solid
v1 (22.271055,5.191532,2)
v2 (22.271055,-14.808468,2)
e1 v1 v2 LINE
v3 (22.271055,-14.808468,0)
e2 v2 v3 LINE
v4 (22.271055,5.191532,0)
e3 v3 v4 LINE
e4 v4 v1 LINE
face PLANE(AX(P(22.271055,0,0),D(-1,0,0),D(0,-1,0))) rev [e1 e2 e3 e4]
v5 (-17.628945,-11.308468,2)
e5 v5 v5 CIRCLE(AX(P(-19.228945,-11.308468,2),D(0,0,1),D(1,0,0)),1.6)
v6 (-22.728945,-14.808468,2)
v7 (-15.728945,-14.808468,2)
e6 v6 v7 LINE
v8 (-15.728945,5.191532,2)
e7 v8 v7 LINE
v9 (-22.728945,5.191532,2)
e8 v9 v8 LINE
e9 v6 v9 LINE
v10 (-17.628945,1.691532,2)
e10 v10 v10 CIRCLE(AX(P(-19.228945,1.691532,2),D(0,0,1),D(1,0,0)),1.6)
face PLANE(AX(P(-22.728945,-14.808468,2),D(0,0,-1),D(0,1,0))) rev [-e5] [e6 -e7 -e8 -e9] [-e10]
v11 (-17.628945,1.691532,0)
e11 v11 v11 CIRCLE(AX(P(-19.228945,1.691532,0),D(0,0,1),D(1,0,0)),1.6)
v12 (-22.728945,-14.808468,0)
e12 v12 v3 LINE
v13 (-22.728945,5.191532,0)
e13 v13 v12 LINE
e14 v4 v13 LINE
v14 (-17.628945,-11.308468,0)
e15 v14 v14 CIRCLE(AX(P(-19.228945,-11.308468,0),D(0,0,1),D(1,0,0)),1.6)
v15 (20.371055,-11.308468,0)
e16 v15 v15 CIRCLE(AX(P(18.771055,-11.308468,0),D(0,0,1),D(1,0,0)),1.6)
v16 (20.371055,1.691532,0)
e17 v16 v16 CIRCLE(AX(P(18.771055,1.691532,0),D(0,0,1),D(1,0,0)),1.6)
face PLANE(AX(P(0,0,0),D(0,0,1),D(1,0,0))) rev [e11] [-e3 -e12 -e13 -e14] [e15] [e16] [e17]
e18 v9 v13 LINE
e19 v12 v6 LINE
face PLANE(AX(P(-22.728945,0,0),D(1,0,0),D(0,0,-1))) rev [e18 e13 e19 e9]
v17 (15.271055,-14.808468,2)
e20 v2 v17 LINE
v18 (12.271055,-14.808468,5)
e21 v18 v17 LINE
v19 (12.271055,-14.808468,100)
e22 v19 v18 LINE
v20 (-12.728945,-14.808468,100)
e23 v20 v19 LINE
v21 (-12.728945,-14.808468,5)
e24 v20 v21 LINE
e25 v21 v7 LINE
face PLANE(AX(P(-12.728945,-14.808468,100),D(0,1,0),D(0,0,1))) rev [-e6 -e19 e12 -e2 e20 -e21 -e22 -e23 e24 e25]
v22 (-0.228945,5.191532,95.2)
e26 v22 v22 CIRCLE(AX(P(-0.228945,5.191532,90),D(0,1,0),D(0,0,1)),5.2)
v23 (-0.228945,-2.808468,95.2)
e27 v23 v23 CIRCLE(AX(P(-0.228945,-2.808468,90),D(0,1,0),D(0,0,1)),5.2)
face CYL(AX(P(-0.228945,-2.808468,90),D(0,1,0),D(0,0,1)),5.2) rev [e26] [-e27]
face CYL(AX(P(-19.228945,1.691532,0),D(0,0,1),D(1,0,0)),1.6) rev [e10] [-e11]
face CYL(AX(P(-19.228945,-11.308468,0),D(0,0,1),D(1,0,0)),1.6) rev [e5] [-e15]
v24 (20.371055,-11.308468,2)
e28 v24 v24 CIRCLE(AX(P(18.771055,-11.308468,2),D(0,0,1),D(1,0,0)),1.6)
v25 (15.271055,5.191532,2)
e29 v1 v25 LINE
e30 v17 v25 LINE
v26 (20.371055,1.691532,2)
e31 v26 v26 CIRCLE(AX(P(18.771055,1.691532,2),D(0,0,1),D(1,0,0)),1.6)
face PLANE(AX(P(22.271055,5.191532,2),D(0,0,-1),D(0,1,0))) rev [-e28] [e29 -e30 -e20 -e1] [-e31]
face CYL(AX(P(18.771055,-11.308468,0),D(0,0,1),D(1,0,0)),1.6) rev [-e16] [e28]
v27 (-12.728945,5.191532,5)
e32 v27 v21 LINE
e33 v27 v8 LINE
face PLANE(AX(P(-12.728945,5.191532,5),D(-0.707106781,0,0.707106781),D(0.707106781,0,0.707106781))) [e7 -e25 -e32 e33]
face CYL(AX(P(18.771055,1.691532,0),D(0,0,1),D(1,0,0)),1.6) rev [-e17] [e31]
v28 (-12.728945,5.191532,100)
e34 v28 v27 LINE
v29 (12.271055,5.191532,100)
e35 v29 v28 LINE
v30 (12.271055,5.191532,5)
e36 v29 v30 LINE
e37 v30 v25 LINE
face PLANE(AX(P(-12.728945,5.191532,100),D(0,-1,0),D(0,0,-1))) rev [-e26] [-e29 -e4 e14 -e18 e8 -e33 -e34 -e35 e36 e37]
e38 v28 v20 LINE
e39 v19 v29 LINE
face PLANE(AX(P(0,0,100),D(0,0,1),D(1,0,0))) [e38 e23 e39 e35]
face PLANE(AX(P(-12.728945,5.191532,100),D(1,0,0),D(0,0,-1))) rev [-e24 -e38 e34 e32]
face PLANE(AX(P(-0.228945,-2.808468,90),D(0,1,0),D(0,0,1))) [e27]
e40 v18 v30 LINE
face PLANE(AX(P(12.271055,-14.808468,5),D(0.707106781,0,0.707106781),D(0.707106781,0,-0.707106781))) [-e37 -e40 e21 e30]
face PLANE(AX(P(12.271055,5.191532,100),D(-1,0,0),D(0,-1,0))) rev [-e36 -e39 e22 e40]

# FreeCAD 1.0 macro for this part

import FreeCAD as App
import Part
import Sketcher

V = App.Vector
Q = App.Units.Quantity

doc = App.newDocument("Part")
body = doc.addObject("PartDesign::Body", "Body")

# Sketch on XY plane
sketch1 = doc.addObject("Sketcher::SketchObject", "Sketch")
body.addObject(sketch1)
sketch1.AttachmentSupport = (doc.XY_Plane, [""])
sketch1.MapMode = "FlatFace"
sketch1.addGeometry(Part.LineSegment(V(-12.728945, 5.191532, 0), V(-12.728945, -14.808468, 0)), False)
sketch1.addGeometry(Part.LineSegment(V(-12.728945, -14.808468, 0), V(12.271055, -14.808468, 0)), False)
sketch1.addGeometry(Part.LineSegment(V(12.271055, -14.808468, 0), V(12.271055, 5.191532, 0)), False)
sketch1.addGeometry(Part.LineSegment(V(12.271055, 5.191532, 0), V(-12.728945, 5.191532, 0)), False)
sketch1.addConstraint(Sketcher.Constraint("Coincident", 0, 2, 1, 1))
sketch1.addConstraint(Sketcher.Constraint("Coincident", 1, 2, 2, 1))
sketch1.addConstraint(Sketcher.Constraint("Coincident", 2, 2, 3, 1))
sketch1.addConstraint(Sketcher.Constraint("Coincident", 3, 2, 0, 1))
sketch1.addConstraint(Sketcher.Constraint("Vertical", 0))
sketch1.addConstraint(Sketcher.Constraint("Horizontal", 1))
sketch1.addConstraint(Sketcher.Constraint("Vertical", 2))
sketch1.addConstraint(Sketcher.Constraint("Horizontal", 3))
sketch1.addConstraint(Sketcher.Constraint("DistanceX", 1, 1, 1, 2, Q("25 mm")))
sketch1.addConstraint(Sketcher.Constraint("DistanceY", 0, 2, 0, 1, Q("20 mm")))
sketch1.addConstraint(Sketcher.Constraint("DistanceX", 0, 2, -1, 1, Q("12.728945 mm")))
sketch1.addConstraint(Sketcher.Constraint("DistanceY", 0, 2, -1, 1, Q("14.808468 mm")))
pad1 = doc.addObject("PartDesign::Pad", "Pad")
body.addObject(pad1)
pad1.Profile = sketch1
pad1.Length = 100

# Sketch on XZ plane
sketch2 = doc.addObject("Sketcher::SketchObject", "Sketch001")
body.addObject(sketch2)
sketch2.AttachmentSupport = (doc.XZ_Plane, [""])
sketch2.MapMode = "FlatFace"
sketch2.AttachmentOffset = App.Placement(V(0, 0, -5.191532), App.Rotation())
sketch2.addGeometry(Part.Circle(V(-0.228945, 90, 0), V(0, 0, 1), 5.2), False)
sketch2.addConstraint(Sketcher.Constraint("Diameter", 0, Q("10.4 mm")))
sketch2.addConstraint(Sketcher.Constraint("DistanceY", -1, 1, 0, 3, Q("90 mm")))
sketch2.addConstraint(Sketcher.Constraint("DistanceX", 0, 3, -1, 1, Q("0.228945 mm")))
pocket1 = doc.addObject("PartDesign::Pocket", "Pocket")
body.addObject(pocket1)
pocket1.Profile = sketch2
pocket1.Length = 8
pocket1.Reversed = True

# Sketch on YZ plane
sketch3 = doc.addObject("Sketcher::SketchObject", "Sketch002")
body.addObject(sketch3)
sketch3.AttachmentSupport = (doc.YZ_Plane, [""])
sketch3.MapMode = "FlatFace"
sketch3.AttachmentOffset = App.Placement(V(0, 0, 12.271055), App.Rotation())
sketch3.addGeometry(Part.LineSegment(V(5.191532, 2, 0), V(-14.808468, 2, 0)), False)
sketch3.addGeometry(Part.LineSegment(V(-14.808468, 2, 0), V(-14.808468, 0, 0)), False)
sketch3.addGeometry(Part.LineSegment(V(-14.808468, 0, 0), V(5.191532, 0, 0)), False)
sketch3.addGeometry(Part.LineSegment(V(5.191532, 0, 0), V(5.191532, 2, 0)), False)
sketch3.addConstraint(Sketcher.Constraint("Coincident", 0, 2, 1, 1))
sketch3.addConstraint(Sketcher.Constraint("Coincident", 1, 2, 2, 1))
sketch3.addConstraint(Sketcher.Constraint("Coincident", 2, 2, 3, 1))
sketch3.addConstraint(Sketcher.Constraint("Coincident", 3, 2, 0, 1))
sketch3.addConstraint(Sketcher.Constraint("Horizontal", 0))
sketch3.addConstraint(Sketcher.Constraint("Vertical", 1))
sketch3.addConstraint(Sketcher.Constraint("Horizontal", 2))
sketch3.addConstraint(Sketcher.Constraint("Vertical", 3))
sketch3.addConstraint(Sketcher.Constraint("PointOnObject", 1, 2, -1))
sketch3.addConstraint(Sketcher.Constraint("DistanceX", 0, 2, 0, 1, Q("20 mm")))
sketch3.addConstraint(Sketcher.Constraint("DistanceY", 1, 2, 1, 1, Q("2 mm")))
sketch3.addConstraint(Sketcher.Constraint("DistanceX", 0, 2, -1, 1, Q("14.808468 mm")))
pad2 = doc.addObject("PartDesign::Pad", "Pad001")
body.addObject(pad2)
pad2.Profile = sketch3
pad2.Length = 10

# Sketch on XZ plane
sketch4 = doc.addObject("Sketcher::SketchObject", "Sketch003")
body.addObject(sketch4)
sketch4.AttachmentSupport = (doc.XZ_Plane, [""])
sketch4.MapMode = "FlatFace"
sketch4.AttachmentOffset = App.Placement(V(0, 0, -5.191532), App.Rotation())
sketch4.addGeometry(Part.LineSegment(V(12.271055, 5, 0), V(15.271055, 2, 0)), False)
sketch4.addGeometry(Part.LineSegment(V(15.271055, 2, 0), V(12.271055, 2, 0)), False)
sketch4.addGeometry(Part.LineSegment(V(12.271055, 2, 0), V(12.271055, 5, 0)), False)
sketch4.addConstraint(Sketcher.Constraint("Coincident", 0, 2, 1, 1))
sketch4.addConstraint(Sketcher.Constraint("Coincident", 1, 2, 2, 1))
sketch4.addConstraint(Sketcher.Constraint("Coincident", 2, 2, 0, 1))
sketch4.addConstraint(Sketcher.Constraint("Horizontal", 1))
sketch4.addConstraint(Sketcher.Constraint("Vertical", 2))
sketch4.addConstraint(Sketcher.Constraint("Equal", 1, 2))
sketch4.addConstraint(Sketcher.Constraint("DistanceX", 1, 2, 1, 1, Q("3 mm")))
sketch4.addConstraint(Sketcher.Constraint("DistanceY", -1, 1, 0, 2, Q("2 mm")))
sketch4.addConstraint(Sketcher.Constraint("DistanceX", -1, 1, 0, 2, Q("15.271055 mm")))
pad3 = doc.addObject("PartDesign::Pad", "Pad002")
body.addObject(pad3)
pad3.Profile = sketch4
pad3.Length = 20

# Sketch on XY plane
sketch5 = doc.addObject("Sketcher::SketchObject", "Sketch004")
body.addObject(sketch5)
sketch5.AttachmentSupport = (doc.XY_Plane, [""])
sketch5.MapMode = "FlatFace"
sketch5.AttachmentOffset = App.Placement(V(0, 0, 2), App.Rotation())
sketch5.addGeometry(Part.Circle(V(18.771055, 1.691532, 0), V(0, 0, 1), 1.6), False)
sketch5.addGeometry(Part.Circle(V(18.771055, -11.308468, 0), V(0, 0, 1), 1.6), False)
sketch5.addConstraint(Sketcher.Constraint("Equal", 0, 1))
sketch5.addConstraint(Sketcher.Constraint("Vertical", 0, 3, 1, 3))
sketch5.addConstraint(Sketcher.Constraint("Diameter", 0, Q("3.2 mm")))
sketch5.addConstraint(Sketcher.Constraint("DistanceY", 1, 3, 0, 3, Q("13 mm")))
sketch5.addConstraint(Sketcher.Constraint("DistanceX", -1, 1, 0, 3, Q("18.771055 mm")))
sketch5.addConstraint(Sketcher.Constraint("DistanceY", -1, 1, 0, 3, Q("1.691532 mm")))
pocket2 = doc.addObject("PartDesign::Pocket", "Pocket001")
body.addObject(pocket2)
pocket2.Profile = sketch5
pocket2.Type = "ThroughAll"

# Sketch on YZ plane
sketch6 = doc.addObject("Sketcher::SketchObject", "Sketch005")
body.addObject(sketch6)
sketch6.AttachmentSupport = (doc.YZ_Plane, [""])
sketch6.MapMode = "FlatFace"
sketch6.AttachmentOffset = App.Placement(V(0, 0, -12.728945), App.Rotation())
sketch6.addGeometry(Part.LineSegment(V(5.191532, 0, 0), V(-14.808468, 0, 0)), False)
sketch6.addGeometry(Part.LineSegment(V(-14.808468, 0, 0), V(-14.808468, 2, 0)), False)
sketch6.addGeometry(Part.LineSegment(V(-14.808468, 2, 0), V(5.191532, 2, 0)), False)
sketch6.addGeometry(Part.LineSegment(V(5.191532, 2, 0), V(5.191532, 0, 0)), False)
sketch6.addConstraint(Sketcher.Constraint("Coincident", 0, 2, 1, 1))
sketch6.addConstraint(Sketcher.Constraint("Coincident", 1, 2, 2, 1))
sketch6.addConstraint(Sketcher.Constraint("Coincident", 2, 2, 3, 1))
sketch6.addConstraint(Sketcher.Constraint("Coincident", 3, 2, 0, 1))
sketch6.addConstraint(Sketcher.Constraint("Horizontal", 0))
sketch6.addConstraint(Sketcher.Constraint("Vertical", 1))
sketch6.addConstraint(Sketcher.Constraint("Horizontal", 2))
sketch6.addConstraint(Sketcher.Constraint("Vertical", 3))
sketch6.addConstraint(Sketcher.Constraint("PointOnObject", 0, 2, -1))
sketch6.addConstraint(Sketcher.Constraint("DistanceX", 0, 2, 0, 1, Q("20 mm")))
sketch6.addConstraint(Sketcher.Constraint("DistanceY", 1, 1, 1, 2, Q("2 mm")))
sketch6.addConstraint(Sketcher.Constraint("DistanceX", 0, 2, -1, 1, Q("14.808468 mm")))
pad4 = doc.addObject("PartDesign::Pad", "Pad003")
body.addObject(pad4)
pad4.Profile = sketch6
pad4.Length = 10
pad4.Reversed = True

# Sketch on XZ plane
sketch7 = doc.addObject("Sketcher::SketchObject", "Sketch006")
body.addObject(sketch7)
sketch7.AttachmentSupport = (doc.XZ_Plane, [""])
sketch7.MapMode = "FlatFace"
sketch7.AttachmentOffset = App.Placement(V(0, 0, 14.808468), App.Rotation())
sketch7.addGeometry(Part.LineSegment(V(-12.728945, 5, 0), V(-15.728945, 2, 0)), False)
sketch7.addGeometry(Part.LineSegment(V(-15.728945, 2, 0), V(-12.728945, 2, 0)), False)
sketch7.addGeometry(Part.LineSegment(V(-12.728945, 2, 0), V(-12.728945, 5, 0)), False)
sketch7.addConstraint(Sketcher.Constraint("Coincident", 0, 2, 1, 1))
sketch7.addConstraint(Sketcher.Constraint("Coincident", 1, 2, 2, 1))
sketch7.addConstraint(Sketcher.Constraint("Coincident", 2, 2, 0, 1))
sketch7.addConstraint(Sketcher.Constraint("Horizontal", 1))
sketch7.addConstraint(Sketcher.Constraint("Vertical", 2))
sketch7.addConstraint(Sketcher.Constraint("Equal", 1, 2))
sketch7.addConstraint(Sketcher.Constraint("DistanceX", 1, 1, 1, 2, Q("3 mm")))
sketch7.addConstraint(Sketcher.Constraint("DistanceY", -1, 1, 0, 2, Q("2 mm")))
sketch7.addConstraint(Sketcher.Constraint("DistanceX", 0, 2, -1, 1, Q("15.728945 mm")))
pad5 = doc.addObject("PartDesign::Pad", "Pad004")
body.addObject(pad5)
pad5.Profile = sketch7
pad5.Length = 20
pad5.Reversed = True

# Sketch on XY plane
sketch8 = doc.addObject("Sketcher::SketchObject", "Sketch007")
body.addObject(sketch8)
sketch8.AttachmentSupport = (doc.XY_Plane, [""])
sketch8.MapMode = "FlatFace"
sketch8.AttachmentOffset = App.Placement(V(0, 0, 2), App.Rotation())
sketch8.addGeometry(Part.Circle(V(-19.228945, -11.308468, 0), V(0, 0, 1), 1.6), False)
sketch8.addGeometry(Part.Circle(V(-19.228945, 1.691532, 0), V(0, 0, 1), 1.6), False)
sketch8.addConstraint(Sketcher.Constraint("Equal", 0, 1))
sketch8.addConstraint(Sketcher.Constraint("Vertical", 0, 3, 1, 3))
sketch8.addConstraint(Sketcher.Constraint("Diameter", 0, Q("3.2 mm")))
sketch8.addConstraint(Sketcher.Constraint("DistanceY", 0, 3, 1, 3, Q("13 mm")))
sketch8.addConstraint(Sketcher.Constraint("DistanceX", 0, 3, -1, 1, Q("19.228945 mm")))
sketch8.addConstraint(Sketcher.Constraint("DistanceY", 0, 3, -1, 1, Q("11.308468 mm")))
pocket3 = doc.addObject("PartDesign::Pocket", "Pocket002")
body.addObject(pocket3)
pocket3.Profile = sketch8
pocket3.Type = "ThroughAll"

doc.recompute()
